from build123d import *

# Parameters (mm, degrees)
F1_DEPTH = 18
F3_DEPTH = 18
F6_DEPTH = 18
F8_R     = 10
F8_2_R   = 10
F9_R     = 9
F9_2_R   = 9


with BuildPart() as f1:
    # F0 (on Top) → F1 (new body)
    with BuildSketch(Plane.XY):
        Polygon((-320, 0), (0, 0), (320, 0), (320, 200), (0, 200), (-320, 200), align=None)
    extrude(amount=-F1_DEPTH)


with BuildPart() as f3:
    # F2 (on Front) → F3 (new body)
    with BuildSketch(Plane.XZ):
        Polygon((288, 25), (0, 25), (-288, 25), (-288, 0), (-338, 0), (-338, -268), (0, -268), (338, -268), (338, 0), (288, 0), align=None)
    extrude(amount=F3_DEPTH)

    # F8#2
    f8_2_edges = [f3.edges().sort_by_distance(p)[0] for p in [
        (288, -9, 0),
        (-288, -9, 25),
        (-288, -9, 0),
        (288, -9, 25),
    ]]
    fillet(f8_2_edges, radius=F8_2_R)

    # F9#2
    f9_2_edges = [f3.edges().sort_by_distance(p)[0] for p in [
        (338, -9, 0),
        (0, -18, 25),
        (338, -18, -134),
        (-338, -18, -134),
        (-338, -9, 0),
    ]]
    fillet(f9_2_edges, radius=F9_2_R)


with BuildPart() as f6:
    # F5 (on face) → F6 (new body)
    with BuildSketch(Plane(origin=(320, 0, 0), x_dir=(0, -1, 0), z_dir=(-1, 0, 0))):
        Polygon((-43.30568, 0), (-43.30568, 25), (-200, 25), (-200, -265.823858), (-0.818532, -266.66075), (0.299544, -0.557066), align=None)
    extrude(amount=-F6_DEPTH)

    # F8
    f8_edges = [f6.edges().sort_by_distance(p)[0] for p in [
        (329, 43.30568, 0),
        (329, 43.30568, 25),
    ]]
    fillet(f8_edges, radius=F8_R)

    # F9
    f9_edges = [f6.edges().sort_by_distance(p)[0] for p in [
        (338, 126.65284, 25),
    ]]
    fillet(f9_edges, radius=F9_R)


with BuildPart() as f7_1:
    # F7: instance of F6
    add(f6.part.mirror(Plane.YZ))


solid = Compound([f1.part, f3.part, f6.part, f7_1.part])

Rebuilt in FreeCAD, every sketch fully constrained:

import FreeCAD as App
import Part
import Sketcher


def edges_at(feature, points):
    """Names of the edges that pass closest to the given points."""
    edges = feature.Shape.Edges
    near = lambda p: min(range(len(edges)), key=lambda i: edges[i].distToShape(Part.Vertex(*p))[0])
    return sorted({f"Edge{near(p) + 1}" for p in points})


def add_polygon(sketch, points):
    """Adds a closed chain of lines whose ends are joined by coincident constraints."""
    first, n = sketch.GeometryCount, len(points)
    for a, b in zip(points, points[1:] + points[:1]):
        sketch.addGeometry(Part.LineSegment(App.Vector(*a, 0), App.Vector(*b, 0)), False)
    for i in range(n):
        sketch.addConstraint(Sketcher.Constraint("Coincident", first + i, 2, first + (i + 1) % n, 1))

doc = App.newDocument("Part")
params = doc.addObject("Spreadsheet::Sheet", "Params")
for row, (alias, value) in enumerate([
    ("sketch1_width", "640 mm"),
    ("sketch1_height", "200 mm"),
    ("pad1_length", "18 mm"),
    ("sketch2_width", "576 mm"),
    ("sketch2_width2", "50 mm"),
    ("sketch2_height", "25 mm"),
    ("sketch2_height2", "268 mm"),
    ("pad2_length", "18 mm"),
    ("fillet_radius", "10 mm"),
    ("fillet2_radius", "9 mm"),
    ("sketch3_height", "25 mm"),
    ("pad3_length", "18 mm"),
    ("fillet3_radius", "10 mm"),
    ("fillet4_radius", "9 mm"),
], start=1):
    params.set(f"A{row}", alias)
    params.set(f"B{row}", "=" + value)
    params.setAlias(f"B{row}", alias)

body = doc.addObject("PartDesign::Body", "Body")

sketch1 = doc.addObject("Sketcher::SketchObject", "Sketch")
body.addObject(sketch1)
sketch1.AttachmentSupport = (doc.XY_Plane, [""])
sketch1.MapMode = "FlatFace"
add_polygon(sketch1, [(-320, 0), (320, 0), (320, 200), (-320, 200)])
sketch1.addConstraint([
    Sketcher.Constraint("Horizontal", 0),
    Sketcher.Constraint("Vertical", 1),
    Sketcher.Constraint("Horizontal", 2),
    Sketcher.Constraint("Vertical", 3),
    Sketcher.Constraint("Symmetric", 0, 2, 3, 2, -1, 1),
    Sketcher.Constraint("DistanceX", 0, 1, 0, 2, 640.0),
    Sketcher.Constraint("DistanceY", 1, 1, 1, 2, 200.0),
])
sketch1.setExpression("Constraints[9]", "Params.sketch1_width")
sketch1.setExpression("Constraints[10]", "Params.sketch1_height")
pad1 = doc.addObject("PartDesign::Pad", "Pad")
body.addObject(pad1)
pad1.Profile = sketch1
pad1.setExpression("Length", "Params.pad1_length")
pad1.Reversed = True
body2 = doc.addObject("PartDesign::Body", "Body001")

sketch2 = doc.addObject("Sketcher::SketchObject", "Sketch001")
body2.addObject(sketch2)
sketch2.AttachmentSupport = (doc.getObject("XZ_Plane001"), [""])
sketch2.MapMode = "FlatFace"
add_polygon(sketch2, [(288, 25), (-288, 25), (-288, 0), (-338, 0), (-338, -268), (338, -268), (338, 0), (288, 0)])
sketch2.addConstraint([
    Sketcher.Constraint("Horizontal", 0),
    Sketcher.Constraint("Vertical", 1),
    Sketcher.Constraint("Horizontal", 2),
    Sketcher.Constraint("Vertical", 3),
    Sketcher.Constraint("Horizontal", 4),
    Sketcher.Constraint("Vertical", 5),
    Sketcher.Constraint("Horizontal", 6),
    Sketcher.Constraint("Vertical", 7),
    Sketcher.Constraint("Symmetric", 2, 2, 5, 2, -1, 1),
    Sketcher.Constraint("Symmetric", 1, 2, 6, 2, -2),
    Sketcher.Constraint("DistanceX", 0, 2, 0, 1, 576.0),
    Sketcher.Constraint("DistanceX", 2, 2, 2, 1, 50.0),
    Sketcher.Constraint("DistanceY", 1, 2, 1, 1, 25.0),
    Sketcher.Constraint("DistanceY", 3, 2, 3, 1, 268.0),
])
sketch2.setExpression("Constraints[18]", "Params.sketch2_width")
sketch2.setExpression("Constraints[19]", "Params.sketch2_width2")
sketch2.setExpression("Constraints[20]", "Params.sketch2_height")
sketch2.setExpression("Constraints[21]", "Params.sketch2_height2")
pad2 = doc.addObject("PartDesign::Pad", "Pad001")
body2.addObject(pad2)
pad2.Profile = sketch2
pad2.setExpression("Length", "Params.pad2_length")
doc.recompute()

fillet = doc.addObject("PartDesign::Fillet", "Fillet")
body2.addObject(fillet)
fillet.Base = (pad2, edges_at(pad2, [
    (288, -9, 0),
    (-288, -9, 25),
    (-288, -9, 0),
    (288, -9, 25),
]))
fillet.setExpression("Radius", "Params.fillet_radius")
doc.recompute()

fillet2 = doc.addObject("PartDesign::Fillet", "Fillet001")
body2.addObject(fillet2)
fillet2.Base = (fillet, edges_at(fillet, [
    (338, -9, 0),
    (0, -18, 25),
    (338, -18, -134),
    (-338, -18, -134),
    (-338, -9, 0),
]))
fillet2.setExpression("Radius", "Params.fillet2_radius")
body3 = doc.addObject("PartDesign::Body", "Body002")

sketch3 = doc.addObject("Sketcher::SketchObject", "Sketch002")
body3.addObject(sketch3)
sketch3.AttachmentSupport = (doc.getObject("YZ_Plane002"), [""])
sketch3.MapMode = "FlatFace"
sketch3.AttachmentOffset = App.Placement(App.Vector(0, 0, 320), App.Rotation())
add_polygon(sketch3, [(43, 0), (43, 25), (200, 25), (200, -266), (1, -267), (0, -1)])
sketch3.addConstraint([
    Sketcher.Constraint("Vertical", 0),
    Sketcher.Constraint("Horizontal", 1),
    Sketcher.Constraint("Vertical", 2),
    Sketcher.Constraint("PointOnObject", 5, 2, -1),
    Sketcher.Constraint("Perpendicular", 3, 4),
    Sketcher.Constraint("DistanceY", 0, 1, 0, 2, 25.0),
    Sketcher.Constraint("DistanceX", -1, 1, 1, 2, 200.0),
    Sketcher.Constraint("DistanceX", 1, 1, 1, 2, 156.69432),
    Sketcher.Constraint("DistanceY", 2, 2, 2, 1, 290.823858),
    Sketcher.Constraint("DistanceY", 3, 2, -1, 1, 266.66075),
    Sketcher.Constraint("DistanceX", 3, 2, 2, 2, 199.181468),
    Sketcher.Constraint("DistanceY", 2, 2, 4, 2, 265.266792),
])
sketch3.setExpression("Constraints[11]", "Params.sketch3_height")
pad3 = doc.addObject("PartDesign::Pad", "Pad002")
body3.addObject(pad3)
pad3.Profile = sketch3
pad3.setExpression("Length", "Params.pad3_length")
doc.recompute()

fillet3 = doc.addObject("PartDesign::Fillet", "Fillet002")
body3.addObject(fillet3)
fillet3.Base = (pad3, edges_at(pad3, [(329, 43.306, 0), (329, 43.306, 25)]))
fillet3.setExpression("Radius", "Params.fillet3_radius")
doc.recompute()

fillet4 = doc.addObject("PartDesign::Fillet", "Fillet003")
body3.addObject(fillet4)
fillet4.Base = (fillet3, edges_at(fillet3, [(338, 126.653, 25)]))
fillet4.setExpression("Radius", "Params.fillet4_radius")
body4 = doc.addObject("PartDesign::Body", "Body003")
doc.recompute()

mirroring = doc.addObject("Part::Mirroring", "Mirroring")
mirroring.Source = body3
mirroring.Base = App.Vector(0, 0, 0)
mirroring.Normal = App.Vector(1, 0, 0)
body4.BaseFeature = mirroring
doc.recompute()
mirroring.Visibility = False

doc.recompute()
